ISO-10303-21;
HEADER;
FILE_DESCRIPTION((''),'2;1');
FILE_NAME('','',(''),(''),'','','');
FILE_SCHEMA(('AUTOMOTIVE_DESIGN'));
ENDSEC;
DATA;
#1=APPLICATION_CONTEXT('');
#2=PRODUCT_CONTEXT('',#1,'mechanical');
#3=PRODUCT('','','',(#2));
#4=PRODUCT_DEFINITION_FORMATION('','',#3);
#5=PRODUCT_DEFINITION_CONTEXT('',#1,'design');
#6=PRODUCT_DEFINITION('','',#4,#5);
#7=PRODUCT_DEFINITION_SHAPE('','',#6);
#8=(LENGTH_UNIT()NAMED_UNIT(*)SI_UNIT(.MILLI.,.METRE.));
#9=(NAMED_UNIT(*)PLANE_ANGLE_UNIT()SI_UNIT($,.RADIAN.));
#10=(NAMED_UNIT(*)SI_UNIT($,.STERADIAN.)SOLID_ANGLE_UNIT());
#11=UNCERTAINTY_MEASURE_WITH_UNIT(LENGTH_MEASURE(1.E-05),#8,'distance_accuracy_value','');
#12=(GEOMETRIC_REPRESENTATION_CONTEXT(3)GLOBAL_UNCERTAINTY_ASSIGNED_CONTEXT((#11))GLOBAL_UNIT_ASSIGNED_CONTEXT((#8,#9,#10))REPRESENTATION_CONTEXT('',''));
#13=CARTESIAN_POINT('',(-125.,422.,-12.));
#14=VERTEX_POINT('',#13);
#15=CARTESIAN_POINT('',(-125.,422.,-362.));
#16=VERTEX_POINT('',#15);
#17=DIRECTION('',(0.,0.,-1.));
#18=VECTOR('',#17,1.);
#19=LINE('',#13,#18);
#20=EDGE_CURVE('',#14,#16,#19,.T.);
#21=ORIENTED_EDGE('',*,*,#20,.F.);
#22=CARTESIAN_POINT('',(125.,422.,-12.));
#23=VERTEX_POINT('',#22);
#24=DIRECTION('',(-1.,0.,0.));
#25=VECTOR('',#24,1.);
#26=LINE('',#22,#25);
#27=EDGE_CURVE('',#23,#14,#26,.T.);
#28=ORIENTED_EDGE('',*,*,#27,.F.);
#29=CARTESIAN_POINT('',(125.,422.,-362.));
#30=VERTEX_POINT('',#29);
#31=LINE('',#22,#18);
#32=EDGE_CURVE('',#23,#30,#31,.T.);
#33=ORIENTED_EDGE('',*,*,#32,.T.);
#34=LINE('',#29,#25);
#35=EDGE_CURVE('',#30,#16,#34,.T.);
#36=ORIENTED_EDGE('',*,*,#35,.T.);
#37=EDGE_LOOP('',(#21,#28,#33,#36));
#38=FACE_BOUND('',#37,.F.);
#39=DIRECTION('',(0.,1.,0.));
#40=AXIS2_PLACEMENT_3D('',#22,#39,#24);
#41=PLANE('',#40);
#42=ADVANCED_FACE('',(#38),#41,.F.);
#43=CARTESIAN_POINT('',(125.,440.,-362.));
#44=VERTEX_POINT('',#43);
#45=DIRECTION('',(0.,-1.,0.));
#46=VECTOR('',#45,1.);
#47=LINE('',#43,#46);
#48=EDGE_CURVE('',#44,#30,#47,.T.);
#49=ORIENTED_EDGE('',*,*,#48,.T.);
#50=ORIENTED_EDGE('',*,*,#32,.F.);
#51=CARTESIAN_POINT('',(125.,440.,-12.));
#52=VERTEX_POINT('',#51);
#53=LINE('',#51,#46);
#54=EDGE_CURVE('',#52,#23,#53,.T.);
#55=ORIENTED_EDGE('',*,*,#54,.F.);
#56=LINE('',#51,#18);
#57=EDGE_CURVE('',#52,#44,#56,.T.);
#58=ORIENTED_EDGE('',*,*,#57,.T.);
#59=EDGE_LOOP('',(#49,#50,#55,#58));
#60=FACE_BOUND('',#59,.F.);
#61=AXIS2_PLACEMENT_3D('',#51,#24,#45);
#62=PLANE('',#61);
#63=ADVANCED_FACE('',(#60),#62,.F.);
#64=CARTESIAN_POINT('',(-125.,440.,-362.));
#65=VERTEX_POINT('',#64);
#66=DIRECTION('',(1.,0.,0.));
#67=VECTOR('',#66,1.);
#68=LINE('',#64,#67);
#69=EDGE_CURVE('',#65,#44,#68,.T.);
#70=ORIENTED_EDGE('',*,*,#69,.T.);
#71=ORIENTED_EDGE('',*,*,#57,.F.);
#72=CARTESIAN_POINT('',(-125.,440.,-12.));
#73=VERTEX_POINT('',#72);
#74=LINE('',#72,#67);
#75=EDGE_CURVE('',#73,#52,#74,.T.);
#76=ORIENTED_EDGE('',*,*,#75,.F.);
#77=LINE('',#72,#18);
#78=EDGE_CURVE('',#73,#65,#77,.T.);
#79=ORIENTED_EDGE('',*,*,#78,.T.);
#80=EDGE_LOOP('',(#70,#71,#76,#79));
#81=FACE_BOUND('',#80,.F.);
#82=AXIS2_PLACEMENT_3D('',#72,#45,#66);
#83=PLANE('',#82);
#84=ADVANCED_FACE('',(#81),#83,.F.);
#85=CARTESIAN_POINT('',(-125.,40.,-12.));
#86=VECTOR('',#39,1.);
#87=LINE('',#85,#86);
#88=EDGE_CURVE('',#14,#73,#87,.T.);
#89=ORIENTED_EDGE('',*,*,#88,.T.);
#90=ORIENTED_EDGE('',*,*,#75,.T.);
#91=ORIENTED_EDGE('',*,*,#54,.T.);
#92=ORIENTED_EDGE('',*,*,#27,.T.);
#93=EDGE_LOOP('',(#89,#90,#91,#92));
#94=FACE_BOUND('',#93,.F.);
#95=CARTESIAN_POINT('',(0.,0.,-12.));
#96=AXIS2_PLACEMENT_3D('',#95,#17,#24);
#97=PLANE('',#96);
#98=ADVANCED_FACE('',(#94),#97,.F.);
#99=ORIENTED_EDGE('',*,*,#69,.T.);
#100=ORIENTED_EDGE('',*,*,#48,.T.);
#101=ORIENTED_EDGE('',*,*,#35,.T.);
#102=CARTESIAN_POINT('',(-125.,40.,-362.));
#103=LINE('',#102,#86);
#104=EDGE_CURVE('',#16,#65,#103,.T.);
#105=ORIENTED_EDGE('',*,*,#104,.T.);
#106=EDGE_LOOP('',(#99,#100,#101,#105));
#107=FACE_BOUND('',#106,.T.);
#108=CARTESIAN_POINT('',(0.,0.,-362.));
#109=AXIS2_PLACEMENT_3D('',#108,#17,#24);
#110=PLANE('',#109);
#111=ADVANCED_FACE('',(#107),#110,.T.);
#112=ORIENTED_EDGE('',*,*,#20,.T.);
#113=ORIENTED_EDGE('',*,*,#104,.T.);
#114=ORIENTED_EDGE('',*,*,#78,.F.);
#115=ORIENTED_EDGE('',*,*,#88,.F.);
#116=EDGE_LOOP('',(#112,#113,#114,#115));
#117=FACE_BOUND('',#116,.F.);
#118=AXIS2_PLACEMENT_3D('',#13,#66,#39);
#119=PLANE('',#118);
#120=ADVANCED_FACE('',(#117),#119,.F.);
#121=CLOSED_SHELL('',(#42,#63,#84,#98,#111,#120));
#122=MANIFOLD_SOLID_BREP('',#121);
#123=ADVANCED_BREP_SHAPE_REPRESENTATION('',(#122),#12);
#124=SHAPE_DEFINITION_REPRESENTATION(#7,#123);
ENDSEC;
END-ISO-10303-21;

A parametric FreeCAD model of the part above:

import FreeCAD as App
import Part
import Sketcher
Q = App.Units.Quantity


def add_polygon(sketch, points):
    """Adds a closed chain of lines whose ends are joined by coincident constraints."""
    first, n = sketch.GeometryCount, len(points)
    for a, b in zip(points, points[1:] + points[:1]):
        sketch.addGeometry(Part.LineSegment(App.Vector(*a, 0), App.Vector(*b, 0)), False)
    for i in range(n):
        sketch.addConstraint(Sketcher.Constraint("Coincident", first + i, 2, first + (i + 1) % n, 1))

doc = App.newDocument("Part")
body = doc.addObject("PartDesign::Body", "Body")

# Sketch on XY plane
sketch1 = body.newObject("Sketcher::SketchObject", "Sketch")
sketch1.AttachmentSupport = (doc.getObject("XY_Plane"), [""])
sketch1.MapMode = "FlatFace"
sketch1.AttachmentOffset = App.Placement(App.Vector(0, 0, -12), App.Rotation())
add_polygon(sketch1, [(-125, 440), (125, 440), (125, 422), (-125, 422)])  # lines 0-3
sketch1.addConstraint(Sketcher.Constraint("Horizontal", 0))
sketch1.addConstraint(Sketcher.Constraint("Vertical", 1))
sketch1.addConstraint(Sketcher.Constraint("Horizontal", 2))
sketch1.addConstraint(Sketcher.Constraint("Vertical", 3))
sketch1.addConstraint(Sketcher.Constraint("DistanceY", 1, 2, 1, 1, Q("18 mm")))
sketch1.addConstraint(Sketcher.Constraint("DistanceX", 0, 1, 0, 2, Q("250 mm")))
sketch1.addConstraint(Sketcher.Constraint("DistanceX", -1, 1, 0, 2, Q("125 mm")))
sketch1.addConstraint(Sketcher.Constraint("DistanceY", -1, 1, 0, 2, Q("440 mm")))
pad1 = body.newObject("PartDesign::Pad", "Pad")
pad1.Profile = sketch1
pad1.Length = 350
pad1.Reversed = True

doc.recompute()
